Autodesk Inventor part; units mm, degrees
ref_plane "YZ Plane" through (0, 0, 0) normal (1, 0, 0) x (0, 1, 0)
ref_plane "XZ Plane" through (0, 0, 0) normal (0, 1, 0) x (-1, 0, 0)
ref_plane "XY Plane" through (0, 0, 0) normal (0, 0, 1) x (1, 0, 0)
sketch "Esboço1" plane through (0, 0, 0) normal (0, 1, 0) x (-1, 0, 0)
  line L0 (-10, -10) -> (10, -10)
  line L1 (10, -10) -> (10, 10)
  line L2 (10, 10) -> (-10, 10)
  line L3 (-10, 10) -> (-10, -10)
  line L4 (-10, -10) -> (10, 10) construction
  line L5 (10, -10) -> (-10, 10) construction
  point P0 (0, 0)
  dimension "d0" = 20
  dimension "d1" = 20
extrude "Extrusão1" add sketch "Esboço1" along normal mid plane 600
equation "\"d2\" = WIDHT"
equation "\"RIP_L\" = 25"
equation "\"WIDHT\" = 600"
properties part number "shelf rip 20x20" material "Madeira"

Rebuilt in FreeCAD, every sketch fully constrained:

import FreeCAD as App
import Part
import Sketcher
Q = App.Units.Quantity

doc = App.newDocument("Part")
body = doc.addObject("PartDesign::Body", "Body")

# Sketch on XZ plane
sketch1 = body.newObject("Sketcher::SketchObject", "Sketch")
sketch1.AttachmentSupport = (doc.getObject("XZ_Plane"), [""])
sketch1.MapMode = "FlatFace"
sketch1.addGeometry([
    Part.LineSegment(App.Vector(10, 10, 0), App.Vector(10, -10, 0)),
    Part.LineSegment(App.Vector(10, -10, 0), App.Vector(-10, -10, 0)),
    Part.LineSegment(App.Vector(-10, -10, 0), App.Vector(-10, 10, 0)),
    Part.LineSegment(App.Vector(-10, 10, 0), App.Vector(10, 10, 0)),
], False)
sketch1.addConstraint([
    Sketcher.Constraint("Coincident", 0, 2, 1, 1),
    Sketcher.Constraint("Coincident", 1, 2, 2, 1),
    Sketcher.Constraint("Coincident", 2, 2, 3, 1),
    Sketcher.Constraint("Coincident", 3, 2, 0, 1),
    Sketcher.Constraint("Vertical", 0),
    Sketcher.Constraint("Horizontal", 1),
    Sketcher.Constraint("Vertical", 2),
    Sketcher.Constraint("Horizontal", 3),
    Sketcher.Constraint("Symmetric", 0, 2, 2, 2, -1, 1),
    Sketcher.Constraint("Equal", 3, 0),
    Sketcher.Constraint("DistanceX", 1, 2, 1, 1, Q("20 mm")),
])
pad1 = body.newObject("PartDesign::Pad", "Pad")
pad1.Profile = sketch1
pad1.Length = 600
pad1.Midplane = True

doc.recompute()
